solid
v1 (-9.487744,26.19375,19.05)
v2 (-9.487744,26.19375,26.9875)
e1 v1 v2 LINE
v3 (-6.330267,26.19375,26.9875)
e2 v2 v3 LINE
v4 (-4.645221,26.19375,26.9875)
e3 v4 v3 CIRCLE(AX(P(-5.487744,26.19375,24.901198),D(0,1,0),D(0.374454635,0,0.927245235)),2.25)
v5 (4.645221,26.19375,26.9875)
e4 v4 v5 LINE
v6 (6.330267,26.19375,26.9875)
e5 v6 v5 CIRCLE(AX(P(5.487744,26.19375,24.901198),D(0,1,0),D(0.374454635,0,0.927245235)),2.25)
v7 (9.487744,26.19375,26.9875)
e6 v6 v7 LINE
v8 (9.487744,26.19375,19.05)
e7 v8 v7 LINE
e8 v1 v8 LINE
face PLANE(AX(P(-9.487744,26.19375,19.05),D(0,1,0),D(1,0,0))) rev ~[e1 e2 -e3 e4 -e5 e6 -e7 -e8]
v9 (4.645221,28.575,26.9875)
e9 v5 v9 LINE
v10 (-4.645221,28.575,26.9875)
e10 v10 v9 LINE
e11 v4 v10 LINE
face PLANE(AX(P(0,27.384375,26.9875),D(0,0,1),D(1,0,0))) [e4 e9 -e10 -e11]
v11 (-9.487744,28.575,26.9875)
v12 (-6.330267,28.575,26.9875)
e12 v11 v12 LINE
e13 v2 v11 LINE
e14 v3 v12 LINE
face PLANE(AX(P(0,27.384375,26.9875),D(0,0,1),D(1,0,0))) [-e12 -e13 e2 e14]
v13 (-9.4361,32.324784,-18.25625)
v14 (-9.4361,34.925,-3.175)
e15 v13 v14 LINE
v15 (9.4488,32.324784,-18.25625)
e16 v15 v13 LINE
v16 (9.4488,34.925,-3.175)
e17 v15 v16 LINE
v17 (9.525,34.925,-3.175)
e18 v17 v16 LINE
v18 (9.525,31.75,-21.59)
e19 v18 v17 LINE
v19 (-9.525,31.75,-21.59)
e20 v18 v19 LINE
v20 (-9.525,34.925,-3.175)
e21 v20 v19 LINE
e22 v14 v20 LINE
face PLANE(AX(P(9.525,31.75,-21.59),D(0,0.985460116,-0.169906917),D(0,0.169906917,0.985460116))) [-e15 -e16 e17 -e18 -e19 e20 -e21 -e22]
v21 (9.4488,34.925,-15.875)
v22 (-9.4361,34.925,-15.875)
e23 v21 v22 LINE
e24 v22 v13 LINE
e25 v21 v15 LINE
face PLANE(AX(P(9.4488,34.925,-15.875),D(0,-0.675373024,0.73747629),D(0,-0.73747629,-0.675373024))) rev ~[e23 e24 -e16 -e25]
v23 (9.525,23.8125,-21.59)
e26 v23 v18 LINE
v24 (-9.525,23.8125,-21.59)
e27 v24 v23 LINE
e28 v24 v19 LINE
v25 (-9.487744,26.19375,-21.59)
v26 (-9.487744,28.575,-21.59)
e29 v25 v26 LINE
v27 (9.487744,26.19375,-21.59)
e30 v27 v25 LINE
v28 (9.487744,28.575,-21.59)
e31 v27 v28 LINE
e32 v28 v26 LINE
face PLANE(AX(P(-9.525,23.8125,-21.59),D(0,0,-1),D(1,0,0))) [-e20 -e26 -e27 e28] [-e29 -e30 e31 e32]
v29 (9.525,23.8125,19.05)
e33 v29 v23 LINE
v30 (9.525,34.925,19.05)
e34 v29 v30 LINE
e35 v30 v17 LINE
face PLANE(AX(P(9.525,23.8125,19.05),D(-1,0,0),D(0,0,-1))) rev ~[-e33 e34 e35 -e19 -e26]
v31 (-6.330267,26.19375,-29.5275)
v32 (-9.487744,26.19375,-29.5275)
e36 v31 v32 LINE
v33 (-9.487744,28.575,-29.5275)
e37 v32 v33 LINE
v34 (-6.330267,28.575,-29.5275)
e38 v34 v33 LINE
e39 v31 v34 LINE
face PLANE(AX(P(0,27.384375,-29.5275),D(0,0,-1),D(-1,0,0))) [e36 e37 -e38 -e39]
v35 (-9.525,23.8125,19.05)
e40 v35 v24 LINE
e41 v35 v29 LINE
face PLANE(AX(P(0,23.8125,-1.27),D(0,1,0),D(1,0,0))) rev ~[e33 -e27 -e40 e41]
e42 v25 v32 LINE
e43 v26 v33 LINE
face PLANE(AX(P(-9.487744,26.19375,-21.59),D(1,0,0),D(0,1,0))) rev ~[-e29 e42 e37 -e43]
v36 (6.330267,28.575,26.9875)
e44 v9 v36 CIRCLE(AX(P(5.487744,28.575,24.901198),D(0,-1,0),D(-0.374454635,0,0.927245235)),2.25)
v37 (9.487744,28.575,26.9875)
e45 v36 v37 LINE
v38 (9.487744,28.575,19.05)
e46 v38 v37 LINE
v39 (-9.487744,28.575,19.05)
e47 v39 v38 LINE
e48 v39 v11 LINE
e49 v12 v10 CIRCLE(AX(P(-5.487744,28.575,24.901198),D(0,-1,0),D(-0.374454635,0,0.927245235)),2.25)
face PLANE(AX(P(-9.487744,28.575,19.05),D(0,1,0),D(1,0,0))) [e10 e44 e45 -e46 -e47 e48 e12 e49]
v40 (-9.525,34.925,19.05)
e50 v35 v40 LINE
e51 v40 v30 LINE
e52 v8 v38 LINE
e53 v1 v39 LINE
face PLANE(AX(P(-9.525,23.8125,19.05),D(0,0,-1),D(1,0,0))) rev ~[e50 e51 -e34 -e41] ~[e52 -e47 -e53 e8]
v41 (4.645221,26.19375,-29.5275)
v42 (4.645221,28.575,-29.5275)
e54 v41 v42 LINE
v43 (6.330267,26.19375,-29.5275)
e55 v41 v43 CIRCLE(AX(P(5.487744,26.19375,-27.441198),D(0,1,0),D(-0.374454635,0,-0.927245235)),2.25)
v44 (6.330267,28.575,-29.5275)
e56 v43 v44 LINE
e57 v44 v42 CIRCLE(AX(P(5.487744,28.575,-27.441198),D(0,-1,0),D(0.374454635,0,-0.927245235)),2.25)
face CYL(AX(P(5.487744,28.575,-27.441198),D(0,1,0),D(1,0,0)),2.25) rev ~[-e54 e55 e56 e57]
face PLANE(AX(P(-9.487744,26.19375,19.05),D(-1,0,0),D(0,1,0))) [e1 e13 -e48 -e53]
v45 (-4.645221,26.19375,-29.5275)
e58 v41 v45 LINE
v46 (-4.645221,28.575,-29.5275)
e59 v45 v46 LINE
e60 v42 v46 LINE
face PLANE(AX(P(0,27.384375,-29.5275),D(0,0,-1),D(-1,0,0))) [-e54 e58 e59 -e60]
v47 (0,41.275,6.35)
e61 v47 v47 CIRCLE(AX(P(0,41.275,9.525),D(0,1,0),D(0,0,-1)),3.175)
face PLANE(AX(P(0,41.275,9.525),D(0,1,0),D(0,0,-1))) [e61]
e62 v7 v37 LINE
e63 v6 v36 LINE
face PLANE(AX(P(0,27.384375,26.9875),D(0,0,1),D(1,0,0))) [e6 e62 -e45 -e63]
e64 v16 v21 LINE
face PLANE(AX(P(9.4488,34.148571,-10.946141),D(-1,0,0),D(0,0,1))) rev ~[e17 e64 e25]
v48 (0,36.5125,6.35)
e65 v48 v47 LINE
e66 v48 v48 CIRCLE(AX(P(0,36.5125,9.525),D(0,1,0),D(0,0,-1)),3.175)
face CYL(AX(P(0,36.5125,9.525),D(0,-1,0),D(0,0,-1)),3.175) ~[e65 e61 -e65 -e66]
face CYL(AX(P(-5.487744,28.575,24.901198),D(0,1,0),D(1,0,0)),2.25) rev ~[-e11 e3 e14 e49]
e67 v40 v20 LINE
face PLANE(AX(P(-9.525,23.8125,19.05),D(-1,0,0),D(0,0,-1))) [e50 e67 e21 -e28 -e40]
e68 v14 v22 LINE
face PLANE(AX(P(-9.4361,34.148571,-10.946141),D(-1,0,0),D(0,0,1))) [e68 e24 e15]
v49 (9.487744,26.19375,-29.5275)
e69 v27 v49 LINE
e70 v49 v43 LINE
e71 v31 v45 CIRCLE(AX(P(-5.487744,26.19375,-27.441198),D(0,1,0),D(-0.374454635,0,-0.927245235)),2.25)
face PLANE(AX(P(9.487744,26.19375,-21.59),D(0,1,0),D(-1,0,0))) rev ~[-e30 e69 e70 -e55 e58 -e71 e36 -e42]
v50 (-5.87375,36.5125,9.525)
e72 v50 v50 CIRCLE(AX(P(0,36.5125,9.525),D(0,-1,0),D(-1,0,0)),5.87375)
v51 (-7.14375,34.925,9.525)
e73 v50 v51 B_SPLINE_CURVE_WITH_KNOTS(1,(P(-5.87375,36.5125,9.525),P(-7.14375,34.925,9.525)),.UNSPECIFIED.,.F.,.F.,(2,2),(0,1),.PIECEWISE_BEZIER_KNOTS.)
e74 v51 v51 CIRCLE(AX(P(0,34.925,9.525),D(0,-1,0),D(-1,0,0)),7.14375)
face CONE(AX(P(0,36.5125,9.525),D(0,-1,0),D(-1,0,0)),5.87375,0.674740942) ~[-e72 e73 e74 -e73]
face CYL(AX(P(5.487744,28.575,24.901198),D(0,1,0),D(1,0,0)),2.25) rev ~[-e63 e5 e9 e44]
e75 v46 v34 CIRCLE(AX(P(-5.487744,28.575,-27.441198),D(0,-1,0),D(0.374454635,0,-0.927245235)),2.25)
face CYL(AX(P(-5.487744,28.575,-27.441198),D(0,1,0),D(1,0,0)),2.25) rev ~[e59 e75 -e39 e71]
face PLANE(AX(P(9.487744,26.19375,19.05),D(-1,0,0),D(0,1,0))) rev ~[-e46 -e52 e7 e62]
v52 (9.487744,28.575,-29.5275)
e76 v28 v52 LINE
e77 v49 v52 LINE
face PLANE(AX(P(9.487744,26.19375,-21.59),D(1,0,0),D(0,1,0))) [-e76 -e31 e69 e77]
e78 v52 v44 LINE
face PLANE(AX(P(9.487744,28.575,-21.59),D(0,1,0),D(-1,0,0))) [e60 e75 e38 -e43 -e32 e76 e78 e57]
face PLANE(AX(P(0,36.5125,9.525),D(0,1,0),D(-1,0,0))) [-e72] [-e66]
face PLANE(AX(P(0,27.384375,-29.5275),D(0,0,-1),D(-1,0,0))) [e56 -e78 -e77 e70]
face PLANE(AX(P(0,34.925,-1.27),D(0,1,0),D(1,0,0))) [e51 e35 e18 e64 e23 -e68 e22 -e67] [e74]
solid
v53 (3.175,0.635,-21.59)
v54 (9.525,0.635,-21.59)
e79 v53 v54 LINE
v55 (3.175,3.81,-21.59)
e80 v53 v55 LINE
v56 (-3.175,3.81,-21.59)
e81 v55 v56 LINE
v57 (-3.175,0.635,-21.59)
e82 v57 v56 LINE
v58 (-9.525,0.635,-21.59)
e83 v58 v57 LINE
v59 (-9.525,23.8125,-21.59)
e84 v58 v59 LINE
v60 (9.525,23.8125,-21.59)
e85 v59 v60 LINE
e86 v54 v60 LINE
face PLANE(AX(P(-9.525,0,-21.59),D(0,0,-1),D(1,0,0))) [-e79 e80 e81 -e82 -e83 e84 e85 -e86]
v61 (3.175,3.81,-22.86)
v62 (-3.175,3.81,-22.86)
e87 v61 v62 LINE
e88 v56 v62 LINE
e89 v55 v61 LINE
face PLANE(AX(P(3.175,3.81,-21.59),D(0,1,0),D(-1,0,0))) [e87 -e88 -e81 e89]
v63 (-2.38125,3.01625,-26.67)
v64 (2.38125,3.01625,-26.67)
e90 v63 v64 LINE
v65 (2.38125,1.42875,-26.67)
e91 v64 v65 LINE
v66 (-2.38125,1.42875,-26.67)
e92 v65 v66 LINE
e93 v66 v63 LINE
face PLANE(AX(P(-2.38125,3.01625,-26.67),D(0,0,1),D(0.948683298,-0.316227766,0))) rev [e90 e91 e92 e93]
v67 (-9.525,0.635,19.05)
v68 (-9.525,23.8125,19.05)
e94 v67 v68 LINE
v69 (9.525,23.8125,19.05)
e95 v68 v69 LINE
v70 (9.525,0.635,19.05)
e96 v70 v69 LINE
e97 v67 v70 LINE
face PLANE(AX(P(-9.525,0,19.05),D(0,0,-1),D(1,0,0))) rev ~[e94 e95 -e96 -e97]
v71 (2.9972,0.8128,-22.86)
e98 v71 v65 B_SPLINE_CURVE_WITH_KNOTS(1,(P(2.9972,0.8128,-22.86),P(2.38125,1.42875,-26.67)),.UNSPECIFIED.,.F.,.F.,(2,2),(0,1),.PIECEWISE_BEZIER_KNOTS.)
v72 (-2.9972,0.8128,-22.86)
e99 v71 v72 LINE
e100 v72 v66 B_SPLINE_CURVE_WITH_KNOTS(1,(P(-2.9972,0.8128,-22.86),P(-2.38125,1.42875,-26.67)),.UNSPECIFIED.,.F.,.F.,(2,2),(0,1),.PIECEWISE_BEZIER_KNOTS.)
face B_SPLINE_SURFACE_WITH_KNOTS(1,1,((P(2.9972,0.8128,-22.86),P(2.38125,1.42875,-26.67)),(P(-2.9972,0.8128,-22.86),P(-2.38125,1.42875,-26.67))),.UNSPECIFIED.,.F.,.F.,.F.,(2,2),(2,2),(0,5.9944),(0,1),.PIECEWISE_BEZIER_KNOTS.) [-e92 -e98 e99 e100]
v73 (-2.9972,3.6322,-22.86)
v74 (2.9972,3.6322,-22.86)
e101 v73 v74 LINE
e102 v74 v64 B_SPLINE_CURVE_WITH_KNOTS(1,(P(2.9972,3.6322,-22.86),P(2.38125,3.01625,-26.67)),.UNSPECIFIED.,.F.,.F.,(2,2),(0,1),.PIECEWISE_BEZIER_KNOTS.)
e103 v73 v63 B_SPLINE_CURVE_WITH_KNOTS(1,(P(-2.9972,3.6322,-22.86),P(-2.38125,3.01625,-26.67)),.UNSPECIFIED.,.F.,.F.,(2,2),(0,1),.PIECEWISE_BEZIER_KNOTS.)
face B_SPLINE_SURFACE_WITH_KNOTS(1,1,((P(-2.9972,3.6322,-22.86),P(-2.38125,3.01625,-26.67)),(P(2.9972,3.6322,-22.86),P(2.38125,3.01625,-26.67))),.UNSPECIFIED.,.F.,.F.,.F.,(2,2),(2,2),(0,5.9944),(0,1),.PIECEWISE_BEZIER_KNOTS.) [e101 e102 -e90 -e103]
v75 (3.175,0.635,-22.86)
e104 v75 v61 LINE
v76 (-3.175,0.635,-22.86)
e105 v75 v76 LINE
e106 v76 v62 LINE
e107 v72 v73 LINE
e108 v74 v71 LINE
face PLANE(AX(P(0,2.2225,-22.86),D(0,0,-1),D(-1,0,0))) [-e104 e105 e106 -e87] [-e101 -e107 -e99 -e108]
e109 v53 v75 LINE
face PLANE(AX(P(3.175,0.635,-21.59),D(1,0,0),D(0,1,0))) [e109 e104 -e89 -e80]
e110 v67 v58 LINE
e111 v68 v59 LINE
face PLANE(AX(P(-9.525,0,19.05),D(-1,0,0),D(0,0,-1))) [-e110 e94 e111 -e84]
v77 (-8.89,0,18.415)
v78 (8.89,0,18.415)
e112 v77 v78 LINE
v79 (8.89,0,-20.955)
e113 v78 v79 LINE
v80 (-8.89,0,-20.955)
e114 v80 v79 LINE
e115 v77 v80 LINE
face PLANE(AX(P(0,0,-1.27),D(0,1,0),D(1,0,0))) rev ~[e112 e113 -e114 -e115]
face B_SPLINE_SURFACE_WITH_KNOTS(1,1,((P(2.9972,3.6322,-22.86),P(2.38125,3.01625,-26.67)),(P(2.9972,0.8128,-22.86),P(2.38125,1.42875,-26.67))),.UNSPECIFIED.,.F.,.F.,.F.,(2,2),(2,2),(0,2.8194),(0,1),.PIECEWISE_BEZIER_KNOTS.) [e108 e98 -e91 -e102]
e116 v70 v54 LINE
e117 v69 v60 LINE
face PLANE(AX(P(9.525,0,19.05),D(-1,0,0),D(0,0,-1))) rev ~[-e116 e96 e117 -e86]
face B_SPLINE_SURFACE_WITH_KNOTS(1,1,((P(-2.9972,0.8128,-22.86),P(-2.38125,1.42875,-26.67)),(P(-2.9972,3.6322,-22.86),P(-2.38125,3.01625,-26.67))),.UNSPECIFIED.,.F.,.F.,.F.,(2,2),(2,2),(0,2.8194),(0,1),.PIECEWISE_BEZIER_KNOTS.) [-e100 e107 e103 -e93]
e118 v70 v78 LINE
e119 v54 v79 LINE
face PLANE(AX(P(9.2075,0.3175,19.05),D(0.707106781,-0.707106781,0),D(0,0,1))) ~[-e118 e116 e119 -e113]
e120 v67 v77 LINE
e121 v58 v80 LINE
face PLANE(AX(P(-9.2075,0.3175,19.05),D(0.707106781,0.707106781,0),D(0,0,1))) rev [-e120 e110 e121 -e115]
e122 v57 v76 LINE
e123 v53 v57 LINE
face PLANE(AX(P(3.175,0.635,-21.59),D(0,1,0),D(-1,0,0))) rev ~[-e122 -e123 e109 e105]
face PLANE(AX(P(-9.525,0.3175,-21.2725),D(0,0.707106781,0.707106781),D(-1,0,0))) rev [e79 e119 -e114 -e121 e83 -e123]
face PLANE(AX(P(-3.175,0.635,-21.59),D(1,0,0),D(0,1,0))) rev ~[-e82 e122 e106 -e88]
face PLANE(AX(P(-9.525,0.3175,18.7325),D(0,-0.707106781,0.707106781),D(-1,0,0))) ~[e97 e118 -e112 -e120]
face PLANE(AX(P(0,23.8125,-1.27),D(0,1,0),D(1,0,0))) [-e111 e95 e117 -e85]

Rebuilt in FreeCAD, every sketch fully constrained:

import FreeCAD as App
import Part
import Sketcher
Q = App.Units.Quantity


def edges_at(feature, points):
    """Names of the edges that pass closest to the given points."""
    edges = feature.Shape.Edges
    near = lambda p: min(range(len(edges)), key=lambda i: edges[i].distToShape(Part.Vertex(*p))[0])
    return sorted({f"Edge{near(p) + 1}" for p in points})


def add_polygon(sketch, points):
    """Adds a closed chain of lines whose ends are joined by coincident constraints."""
    first, n = sketch.GeometryCount, len(points)
    for a, b in zip(points, points[1:] + points[:1]):
        sketch.addGeometry(Part.LineSegment(App.Vector(*a, 0), App.Vector(*b, 0)), False)
    for i in range(n):
        sketch.addConstraint(Sketcher.Constraint("Coincident", first + i, 2, first + (i + 1) % n, 1))

doc = App.newDocument("Part")
body = doc.addObject("PartDesign::Body", "Body")

sketch1 = body.newObject("Sketcher::SketchObject", "Sketch")
sketch1.AttachmentSupport = (doc.getObject("XZ_Plane"), [""])
sketch1.MapMode = "FlatFace"
add_polygon(sketch1, [(-10, -22), (-10, 19), (10, 19), (10, -22)])
sketch1.addConstraint([
    Sketcher.Constraint("Vertical", 0),
    Sketcher.Constraint("Horizontal", 1),
    Sketcher.Constraint("Vertical", 2),
    Sketcher.Constraint("Horizontal", 3),
    Sketcher.Constraint("DistanceY", 0, 1, 0, 2, Q("1.6 in")),
    Sketcher.Constraint("DistanceX", 1, 1, 1, 2, Q("0.75 in")),
    Sketcher.Constraint("DistanceY", -1, 1, 0, 2, Q("0.75 in")),
    Sketcher.Constraint("DistanceX", 0, 2, -1, 1, Q("0.375 in")),
])
pad1 = body.newObject("PartDesign::Pad", "Pad")
pad1.Profile = sketch1
pad1.Length = Q("0.9375 in")
pad1.Reversed = True
doc.recompute()

chamfer = body.newObject("PartDesign::Chamfer", "Chamfer")
chamfer.Base = (pad1, edges_at(pad1, [
    (0, 0, -21.59),
    (9.525, 0, -1.27),
    (0, 0, 19.05),
    (-9.525, 0, -1.27),
]))
chamfer.Size = Q("0.025 in")

sketch2 = body.newObject("Sketcher::SketchObject", "Sketch001")
sketch2.AttachmentSupport = (doc.getObject("XY_Plane"), [""])
sketch2.MapMode = "FlatFace"
sketch2.AttachmentOffset = App.Placement(App.Vector(0, 0, -0.85 * 25.4), App.Rotation())
add_polygon(sketch2, [(3.2, 3.8), (3.2, 0.6), (-3.2, 0.6), (-3.2, 3.8)])
sketch2.addConstraint([
    Sketcher.Constraint("Vertical", 0),
    Sketcher.Constraint("Horizontal", 1),
    Sketcher.Constraint("Vertical", 2),
    Sketcher.Constraint("Horizontal", 3),
    Sketcher.Constraint("DistanceX", 1, 2, 1, 1, Q("0.25 in")),
    Sketcher.Constraint("DistanceY", 0, 2, 0, 1, Q("0.125 in")),
    Sketcher.Constraint("DistanceY", -1, 1, 2, 2, Q("0.15 in")),
    Sketcher.Constraint("DistanceX", -1, 1, 0, 2, Q("0.125 in")),
])
pad2 = body.newObject("PartDesign::Pad", "Pad001")
pad2.Profile = sketch2
pad2.Length = Q("0.05 in")
pad2.Reversed = True

sketch3 = body.newObject("Sketcher::SketchObject", "Sketch002")
sketch3.AttachmentSupport = (doc.getObject("XY_Plane"), [""])
sketch3.MapMode = "FlatFace"
sketch3.AttachmentOffset = App.Placement(App.Vector(0, 0, -0.9 * 25.4), App.Rotation())
add_polygon(sketch3, [(-3, 3.6), (3, 3.6), (3, 0.8), (-3, 0.8)])
sketch3.addConstraint([
    Sketcher.Constraint("Horizontal", 0),
    Sketcher.Constraint("Vertical", 1),
    Sketcher.Constraint("Horizontal", 2),
    Sketcher.Constraint("Vertical", 3),
    Sketcher.Constraint("DistanceX", 0, 1, 0, 2, Q("0.236 in")),
    Sketcher.Constraint("DistanceY", 1, 2, 1, 1, Q("0.111 in")),
    Sketcher.Constraint("DistanceX", -1, 1, 0, 2, Q("0.118 in")),
    Sketcher.Constraint("DistanceY", -1, 1, 0, 2, Q("0.143 in")),
])

sketch4 = body.newObject("Sketcher::SketchObject", "Sketch003")
sketch4.AttachmentSupport = (doc.getObject("XY_Plane"), [""])
sketch4.MapMode = "FlatFace"
sketch4.AttachmentOffset = App.Placement(App.Vector(0, 0, -1.05 * 25.4), App.Rotation())
add_polygon(sketch4, [(-2.4, 3), (2.4, 3), (2.4, 1.4), (-2.4, 1.4)])
sketch4.addConstraint([
    Sketcher.Constraint("Horizontal", 0),
    Sketcher.Constraint("Vertical", 1),
    Sketcher.Constraint("Horizontal", 2),
    Sketcher.Constraint("Vertical", 3),
    Sketcher.Constraint("DistanceX", 0, 1, 0, 2, Q("0.1875 in")),
    Sketcher.Constraint("DistanceY", 1, 2, 1, 1, Q("0.0625 in")),
    Sketcher.Constraint("DistanceX", -1, 1, 0, 2, Q("0.09375 in")),
    Sketcher.Constraint("DistanceY", -1, 1, 0, 2, Q("3.01625 mm")),
])

additiveloft = body.newObject("PartDesign::AdditiveLoft", "AdditiveLoft")
additiveloft.Profile = sketch3
additiveloft.Sections = [sketch4]
body2 = doc.addObject("PartDesign::Body", "Body001")

sketch5 = body2.newObject("Sketcher::SketchObject", "Sketch004")
sketch5.AttachmentSupport = (doc.getObject("XZ_Plane001"), [""])
sketch5.MapMode = "FlatFace"
sketch5.AttachmentOffset = App.Placement(App.Vector(0, 0, -0.9375 * 25.4), App.Rotation())
add_polygon(sketch5, [(-10, -22), (-10, 19), (10, 19), (10, -22)])
sketch5.addConstraint([
    Sketcher.Constraint("Vertical", 0),
    Sketcher.Constraint("Horizontal", 1),
    Sketcher.Constraint("Vertical", 2),
    Sketcher.Constraint("Horizontal", 3),
    Sketcher.Constraint("DistanceY", 0, 1, 0, 2, Q("1.6 in")),
    Sketcher.Constraint("DistanceX", 1, 1, 1, 2, Q("0.75 in")),
    Sketcher.Constraint("DistanceY", -1, 1, 0, 2, Q("0.75 in")),
    Sketcher.Constraint("DistanceX", 0, 2, -1, 1, Q("0.375 in")),
])
pad3 = body2.newObject("PartDesign::Pad", "Pad002")
pad3.Profile = sketch5
pad3.Length = Q("0.4375 in")
pad3.Reversed = True

sketch6 = body2.newObject("Sketcher::SketchObject", "Sketch005")
sketch6.AttachmentSupport = (doc.getObject("YZ_Plane001"), [""])
sketch6.MapMode = "FlatFace"
sketch6.AttachmentOffset = App.Placement(App.Vector(0, 0, 0.375 * 25.4), App.Rotation())
add_polygon(sketch6, [(34.9, -3.2), (31.8, -21.6), (34.9, -21.6)])
sketch6.addConstraint([
    Sketcher.Constraint("Horizontal", 1),
    Sketcher.Constraint("Vertical", 2),
    Sketcher.Constraint("DistanceX", 1, 1, 1, 2, Q("0.125 in")),
    Sketcher.Constraint("DistanceY", 2, 1, 2, 2, Q("0.725 in")),
    Sketcher.Constraint("DistanceX", -1, 1, 0, 2, Q("1.25 in")),
    Sketcher.Constraint("DistanceY", 0, 2, -1, 1, Q("0.85 in")),
])
pocket1 = body2.newObject("PartDesign::Pocket", "Pocket")
pocket1.Profile = sketch6
pocket1.Type = "ThroughAll"

sketch7 = body2.newObject("Sketcher::SketchObject", "Sketch006")
sketch7.AttachmentSupport = (doc.getObject("YZ_Plane001"), [""])
sketch7.MapMode = "FlatFace"
sketch7.AttachmentOffset = App.Placement(App.Vector(0, 0, 0.372 * 25.4), App.Rotation())
add_polygon(sketch7, [(34.9, -15.9), (34.9, -3.2), (32.3, -18.3)])
sketch7.addConstraint([
    Sketcher.Constraint("Vertical", 0),
    Sketcher.Constraint("DistanceY", 0, 1, 0, 2, Q("0.5 in")),
    Sketcher.Constraint("DistanceX", -1, 1, 0, 2, Q("1.375 in")),
    Sketcher.Constraint("DistanceY", 0, 2, -1, 1, Q("0.125 in")),
    Sketcher.Constraint("DistanceY", 1, 2, -1, 1, Q("0.71875 in")),
    Sketcher.Constraint("Distance", 2, Q("3.525829 mm")),
])
pad4 = body2.newObject("PartDesign::Pad", "Pad003")
pad4.Profile = sketch7
pad4.Length = Q("0.7435 in")
pad4.Reversed = True

sketch8 = body2.newObject("Sketcher::SketchObject", "Sketch007")
sketch8.AttachmentSupport = (doc.getObject("XZ_Plane001"), [""])
sketch8.MapMode = "FlatFace"
sketch8.AttachmentOffset = App.Placement(App.Vector(0, 0, -1.4375 * 25.4), App.Rotation())
sketch8.addGeometry(Part.Circle(App.Vector(0, 10, 0), App.Vector(0, 0, 1), 6), False)
sketch8.addConstraint([
    Sketcher.Constraint("PointOnObject", 0, 3, -2),
    Sketcher.Constraint("Diameter", 0, Q("0.4625 in")),
    Sketcher.Constraint("DistanceY", -1, 1, 0, 3, Q("0.375 in")),
])

sketch9 = body2.newObject("Sketcher::SketchObject", "Sketch008")
sketch9.AttachmentSupport = (doc.getObject("XZ_Plane001"), [""])
sketch9.MapMode = "FlatFace"
sketch9.AttachmentOffset = App.Placement(App.Vector(0, 0, -1.375 * 25.4), App.Rotation())
sketch9.addGeometry(Part.Circle(App.Vector(0, 10, 0), App.Vector(0, 0, 1), 7), False)
sketch9.addConstraint([
    Sketcher.Constraint("PointOnObject", 0, 3, -2),
    Sketcher.Constraint("Diameter", 0, Q("0.5625 in")),
    Sketcher.Constraint("DistanceY", -1, 1, 0, 3, Q("0.375 in")),
])

additiveloft2 = body2.newObject("PartDesign::AdditiveLoft", "AdditiveLoft001")
additiveloft2.Profile = sketch8
additiveloft2.Sections = [sketch9]

sketch10 = body2.newObject("Sketcher::SketchObject", "Sketch009")
sketch10.AttachmentSupport = (doc.getObject("XZ_Plane001"), [""])
sketch10.MapMode = "FlatFace"
sketch10.AttachmentOffset = App.Placement(App.Vector(0, 0, -1.4375 * 25.4), App.Rotation())
sketch10.addGeometry(Part.Circle(App.Vector(0, 9.5, 0), App.Vector(0, 0, 1), 3.2), False)
sketch10.addConstraint([
    Sketcher.Constraint("PointOnObject", 0, 3, -2),
    Sketcher.Constraint("Diameter", 0, Q("0.25 in")),
    Sketcher.Constraint("DistanceY", -1, 1, 0, 3, Q("0.375 in")),
])
pad5 = body2.newObject("PartDesign::Pad", "Pad004")
pad5.Profile = sketch10
pad5.Length = Q("0.1875 in")
pad5.Reversed = True

sketch11 = body2.newObject("Sketcher::SketchObject", "Sketch010")
sketch11.AttachmentSupport = (doc.getObject("XY_Plane001"), [""])
sketch11.MapMode = "FlatFace"
sketch11.AttachmentOffset = App.Placement(App.Vector(0, 0, -0.85 * 25.4), App.Rotation())
add_polygon(sketch11, [(9.5, 28.6), (9.5, 26.2), (-9.5, 26.2), (-9.5, 28.6)])
sketch11.addConstraint([
    Sketcher.Constraint("Vertical", 0),
    Sketcher.Constraint("Horizontal", 1),
    Sketcher.Constraint("Vertical", 2),
    Sketcher.Constraint("Horizontal", 3),
    Sketcher.Constraint("DistanceY", 0, 2, 0, 1, Q("0.09375 in")),
    Sketcher.Constraint("DistanceY", -1, 1, 0, 2, Q("1.03125 in")),
    Sketcher.Constraint("DistanceX", 1, 2, 1, 1, Q("18.975488 mm")),
    Sketcher.Constraint("DistanceX", -1, 1, 0, 2, Q("9.487744 mm")),
])
pad6 = body2.newObject("PartDesign::Pad", "Pad005")
pad6.Profile = sketch11
pad6.Length = Q("0.3125 in")
pad6.Reversed = True

sketch12 = body2.newObject("Sketcher::SketchObject", "Sketch011")
sketch12.AttachmentSupport = (doc.getObject("XY_Plane001"), [""])
sketch12.MapMode = "FlatFace"
sketch12.AttachmentOffset = App.Placement(App.Vector(0, 0, 0.75 * 25.4), App.Rotation())
add_polygon(sketch12, [(-9.5, 28.6), (-9.5, 26.2), (9.5, 26.2), (9.5, 28.6)])
sketch12.addConstraint([
    Sketcher.Constraint("Vertical", 0),
    Sketcher.Constraint("Horizontal", 1),
    Sketcher.Constraint("Vertical", 2),
    Sketcher.Constraint("Horizontal", 3),
    Sketcher.Constraint("DistanceY", 0, 2, 0, 1, Q("0.09375 in")),
    Sketcher.Constraint("DistanceY", -1, 1, 0, 2, Q("1.03125 in")),
    Sketcher.Constraint("DistanceX", 1, 1, 1, 2, Q("18.975488 mm")),
    Sketcher.Constraint("DistanceX", 0, 2, -1, 1, Q("9.487744 mm")),
])
pad7 = body2.newObject("PartDesign::Pad", "Pad006")
pad7.Profile = sketch12
pad7.Length = Q("0.3125 in")

sketch13 = body2.newObject("Sketcher::SketchObject", "Sketch012")
sketch13.AttachmentSupport = (doc.getObject("XZ_Plane001"), [""])
sketch13.MapMode = "FlatFace"
sketch13.AttachmentOffset = App.Placement(App.Vector(0, 0, -1.125 * 25.4), App.Rotation())
sketch13.addGeometry([
    Part.Circle(App.Vector(5.5, 24.9, 0), App.Vector(0, 0, 1), 2.2),
    Part.Circle(App.Vector(-5.5, 24.9, 0), App.Vector(0, 0, 1), 2.2),
    Part.Circle(App.Vector(-5.5, -27.4, 0), App.Vector(0, 0, 1), 2.2),
    Part.Circle(App.Vector(5.5, -27.4, 0), App.Vector(0, 0, 1), 2.2),
], False)
sketch13.addConstraint([
    Sketcher.Constraint("Equal", 0, 1),
    Sketcher.Constraint("Equal", 1, 2),
    Sketcher.Constraint("Equal", 2, 3),
    Sketcher.Constraint("Symmetric", 0, 3, 1, 3, -2),
    Sketcher.Constraint("Symmetric", 2, 3, 3, 3, -2),
    Sketcher.Constraint("Vertical", 1, 3, 2, 3),
    Sketcher.Constraint("Diameter", 0, Q("4.5 mm")),
    Sketcher.Constraint("DistanceY", -1, 1, 0, 3, Q("24.901198 mm")),
    Sketcher.Constraint("DistanceY", 2, 3, -1, 1, Q("27.441198 mm")),
    Sketcher.Constraint("DistanceX", -1, 1, 0, 3, Q("5.487744 mm")),
])
pocket2 = body2.newObject("PartDesign::Pocket", "Pocket001")
pocket2.Profile = sketch13
pocket2.Type = "ThroughAll"
pocket2.Reversed = True

doc.recompute()
